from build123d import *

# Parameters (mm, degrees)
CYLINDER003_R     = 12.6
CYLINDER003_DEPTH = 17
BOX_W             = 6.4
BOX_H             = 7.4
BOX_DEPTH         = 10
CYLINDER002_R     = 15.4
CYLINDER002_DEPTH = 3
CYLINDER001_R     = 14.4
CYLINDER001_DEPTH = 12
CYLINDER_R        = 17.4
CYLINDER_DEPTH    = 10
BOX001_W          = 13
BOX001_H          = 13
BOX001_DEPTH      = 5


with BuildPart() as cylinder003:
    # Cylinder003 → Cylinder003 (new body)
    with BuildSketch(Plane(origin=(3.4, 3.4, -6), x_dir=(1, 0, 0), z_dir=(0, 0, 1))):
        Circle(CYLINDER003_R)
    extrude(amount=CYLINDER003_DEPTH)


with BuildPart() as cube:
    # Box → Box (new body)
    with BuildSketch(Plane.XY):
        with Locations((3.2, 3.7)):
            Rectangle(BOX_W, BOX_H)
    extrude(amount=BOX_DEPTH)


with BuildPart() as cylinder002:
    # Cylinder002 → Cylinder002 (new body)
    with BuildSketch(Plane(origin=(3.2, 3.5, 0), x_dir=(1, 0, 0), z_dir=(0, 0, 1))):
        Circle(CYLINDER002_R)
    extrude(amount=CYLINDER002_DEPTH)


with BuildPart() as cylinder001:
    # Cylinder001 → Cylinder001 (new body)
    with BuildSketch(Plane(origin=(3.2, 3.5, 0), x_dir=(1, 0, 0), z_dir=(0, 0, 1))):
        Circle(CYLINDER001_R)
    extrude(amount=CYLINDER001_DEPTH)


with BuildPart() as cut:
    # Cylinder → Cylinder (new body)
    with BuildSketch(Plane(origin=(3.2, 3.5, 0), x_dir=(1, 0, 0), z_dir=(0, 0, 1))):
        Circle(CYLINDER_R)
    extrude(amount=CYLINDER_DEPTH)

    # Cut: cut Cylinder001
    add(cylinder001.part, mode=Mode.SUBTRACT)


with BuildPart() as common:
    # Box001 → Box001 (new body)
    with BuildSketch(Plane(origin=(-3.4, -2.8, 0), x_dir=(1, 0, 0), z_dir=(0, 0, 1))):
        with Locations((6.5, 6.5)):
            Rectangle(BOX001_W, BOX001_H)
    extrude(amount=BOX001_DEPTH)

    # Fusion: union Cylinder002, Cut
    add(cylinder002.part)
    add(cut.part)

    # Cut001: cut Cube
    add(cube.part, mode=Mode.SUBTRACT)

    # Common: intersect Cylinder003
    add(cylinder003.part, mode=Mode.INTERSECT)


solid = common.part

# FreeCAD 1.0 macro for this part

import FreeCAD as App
import Part
import Sketcher
Q = App.Units.Quantity

doc = App.newDocument("Part")
body = doc.addObject("PartDesign::Body", "Body")

# Sketch on XY plane
sketch1 = body.newObject("Sketcher::SketchObject", "Sketch")
sketch1.AttachmentSupport = (doc.getObject("XY_Plane"), [""])
sketch1.MapMode = "FlatFace"
sketch1.AttachmentOffset = App.Placement(App.Vector(0, 0, -6), App.Rotation())
sketch1.addGeometry(Part.Circle(App.Vector(3, 3, 0), App.Vector(0, 0, 1), 13), False)
sketch1.addConstraint([
    Sketcher.Constraint("Diameter", 0, Q("25.2 mm")),
    Sketcher.Constraint("DistanceX", -1, 1, 0, 3, Q("3.4 mm")),
    Sketcher.Constraint("DistanceY", -1, 1, 0, 3, Q("3.4 mm")),
])
pad1 = body.newObject("PartDesign::Pad", "Pad")
pad1.Profile = sketch1
pad1.Length = 17
body2 = doc.addObject("PartDesign::Body", "Body001")

# Sketch on XY plane
sketch2 = body2.newObject("Sketcher::SketchObject", "Sketch001")
sketch2.AttachmentSupport = (doc.getObject("XY_Plane001"), [""])
sketch2.MapMode = "FlatFace"
sketch2.addGeometry([
    Part.LineSegment(App.Vector(0, 7, 0), App.Vector(0, 0, 0)),
    Part.LineSegment(App.Vector(0, 0, 0), App.Vector(6, 0, 0)),
    Part.LineSegment(App.Vector(6, 0, 0), App.Vector(6, 7, 0)),
    Part.LineSegment(App.Vector(6, 7, 0), App.Vector(0, 7, 0)),
], False)
sketch2.addConstraint([
    Sketcher.Constraint("Coincident", 0, 2, 1, 1),
    Sketcher.Constraint("Coincident", 1, 2, 2, 1),
    Sketcher.Constraint("Coincident", 2, 2, 3, 1),
    Sketcher.Constraint("Coincident", 3, 2, 0, 1),
    Sketcher.Constraint("Vertical", 0),
    Sketcher.Constraint("Horizontal", 1),
    Sketcher.Constraint("Vertical", 2),
    Sketcher.Constraint("Horizontal", 3),
    Sketcher.Constraint("Coincident", 0, 2, -1, 1),
    Sketcher.Constraint("DistanceX", 1, 1, 1, 2, Q("6.4 mm")),
    Sketcher.Constraint("DistanceY", 0, 2, 0, 1, Q("7.4 mm")),
])
pad2 = body2.newObject("PartDesign::Pad", "Pad001")
pad2.Profile = sketch2
pad2.Length = 10
body3 = doc.addObject("PartDesign::Body", "Body002")

# Sketch on XY plane
sketch3 = body3.newObject("Sketcher::SketchObject", "Sketch002")
sketch3.AttachmentSupport = (doc.getObject("XY_Plane002"), [""])
sketch3.MapMode = "FlatFace"
sketch3.addGeometry(Part.Circle(App.Vector(3, 4, 0), App.Vector(0, 0, 1), 15), False)
sketch3.addConstraint([
    Sketcher.Constraint("Diameter", 0, Q("30.8 mm")),
    Sketcher.Constraint("DistanceX", -1, 1, 0, 3, Q("3.2 mm")),
    Sketcher.Constraint("DistanceY", -1, 1, 0, 3, Q("3.5 mm")),
])
pad3 = body3.newObject("PartDesign::Pad", "Pad002")
pad3.Profile = sketch3
pad3.Length = 3
body4 = doc.addObject("PartDesign::Body", "Body003")

# Sketch on XY plane
sketch4 = body4.newObject("Sketcher::SketchObject", "Sketch003")
sketch4.AttachmentSupport = (doc.getObject("XY_Plane003"), [""])
sketch4.MapMode = "FlatFace"
sketch4.addGeometry(Part.Circle(App.Vector(3, 4, 0), App.Vector(0, 0, 1), 14), False)
sketch4.addConstraint([
    Sketcher.Constraint("Diameter", 0, Q("28.8 mm")),
    Sketcher.Constraint("DistanceX", -1, 1, 0, 3, Q("3.2 mm")),
    Sketcher.Constraint("DistanceY", -1, 1, 0, 3, Q("3.5 mm")),
])
pad4 = body4.newObject("PartDesign::Pad", "Pad003")
pad4.Profile = sketch4
pad4.Length = 12
body5 = doc.addObject("PartDesign::Body", "Body004")

# Sketch on XY plane
sketch5 = body5.newObject("Sketcher::SketchObject", "Sketch004")
sketch5.AttachmentSupport = (doc.getObject("XY_Plane004"), [""])
sketch5.MapMode = "FlatFace"
sketch5.addGeometry(Part.Circle(App.Vector(3, 4, 0), App.Vector(0, 0, 1), 17), False)
sketch5.addConstraint([
    Sketcher.Constraint("Diameter", 0, Q("34.8 mm")),
    Sketcher.Constraint("DistanceX", -1, 1, 0, 3, Q("3.2 mm")),
    Sketcher.Constraint("DistanceY", -1, 1, 0, 3, Q("3.5 mm")),
])
pad5 = body5.newObject("PartDesign::Pad", "Pad004")
pad5.Profile = sketch5
pad5.Length = 10
doc.recompute()

boolean = body5.newObject("PartDesign::Boolean", "Boolean")
boolean.Type = "Cut"
boolean.addObjects([body4])
body6 = doc.addObject("PartDesign::Body", "Body005")

# Sketch on XY plane
sketch6 = body6.newObject("Sketcher::SketchObject", "Sketch005")
sketch6.AttachmentSupport = (doc.getObject("XY_Plane005"), [""])
sketch6.MapMode = "FlatFace"
sketch6.addGeometry([
    Part.LineSegment(App.Vector(-3, 10, 0), App.Vector(-3, -3, 0)),
    Part.LineSegment(App.Vector(-3, -3, 0), App.Vector(10, -3, 0)),
    Part.LineSegment(App.Vector(10, -3, 0), App.Vector(10, 10, 0)),
    Part.LineSegment(App.Vector(10, 10, 0), App.Vector(-3, 10, 0)),
], False)
sketch6.addConstraint([
    Sketcher.Constraint("Coincident", 0, 2, 1, 1),
    Sketcher.Constraint("Coincident", 1, 2, 2, 1),
    Sketcher.Constraint("Coincident", 2, 2, 3, 1),
    Sketcher.Constraint("Coincident", 3, 2, 0, 1),
    Sketcher.Constraint("Vertical", 0),
    Sketcher.Constraint("Horizontal", 1),
    Sketcher.Constraint("Vertical", 2),
    Sketcher.Constraint("Horizontal", 3),
    Sketcher.Constraint("Equal", 3, 0),
    Sketcher.Constraint("DistanceX", 1, 1, 1, 2, Q("13 mm")),
    Sketcher.Constraint("DistanceX", 0, 2, -1, 1, Q("3.4 mm")),
    Sketcher.Constraint("DistanceY", 0, 2, -1, 1, Q("2.8 mm")),
])
pad6 = body6.newObject("PartDesign::Pad", "Pad005")
pad6.Profile = sketch6
pad6.Length = 5
doc.recompute()

boolean2 = body6.newObject("PartDesign::Boolean", "Boolean001")
boolean2.Type = "Fuse"
boolean2.addObjects([body3])
doc.recompute()

boolean3 = body6.newObject("PartDesign::Boolean", "Boolean002")
boolean3.Type = "Fuse"
boolean3.addObjects([body5])
doc.recompute()

boolean4 = body6.newObject("PartDesign::Boolean", "Boolean003")
boolean4.Type = "Cut"
boolean4.addObjects([body2])
doc.recompute()

boolean5 = body6.newObject("PartDesign::Boolean", "Boolean004")
boolean5.Type = "Common"
boolean5.addObjects([body])

doc.recompute()
